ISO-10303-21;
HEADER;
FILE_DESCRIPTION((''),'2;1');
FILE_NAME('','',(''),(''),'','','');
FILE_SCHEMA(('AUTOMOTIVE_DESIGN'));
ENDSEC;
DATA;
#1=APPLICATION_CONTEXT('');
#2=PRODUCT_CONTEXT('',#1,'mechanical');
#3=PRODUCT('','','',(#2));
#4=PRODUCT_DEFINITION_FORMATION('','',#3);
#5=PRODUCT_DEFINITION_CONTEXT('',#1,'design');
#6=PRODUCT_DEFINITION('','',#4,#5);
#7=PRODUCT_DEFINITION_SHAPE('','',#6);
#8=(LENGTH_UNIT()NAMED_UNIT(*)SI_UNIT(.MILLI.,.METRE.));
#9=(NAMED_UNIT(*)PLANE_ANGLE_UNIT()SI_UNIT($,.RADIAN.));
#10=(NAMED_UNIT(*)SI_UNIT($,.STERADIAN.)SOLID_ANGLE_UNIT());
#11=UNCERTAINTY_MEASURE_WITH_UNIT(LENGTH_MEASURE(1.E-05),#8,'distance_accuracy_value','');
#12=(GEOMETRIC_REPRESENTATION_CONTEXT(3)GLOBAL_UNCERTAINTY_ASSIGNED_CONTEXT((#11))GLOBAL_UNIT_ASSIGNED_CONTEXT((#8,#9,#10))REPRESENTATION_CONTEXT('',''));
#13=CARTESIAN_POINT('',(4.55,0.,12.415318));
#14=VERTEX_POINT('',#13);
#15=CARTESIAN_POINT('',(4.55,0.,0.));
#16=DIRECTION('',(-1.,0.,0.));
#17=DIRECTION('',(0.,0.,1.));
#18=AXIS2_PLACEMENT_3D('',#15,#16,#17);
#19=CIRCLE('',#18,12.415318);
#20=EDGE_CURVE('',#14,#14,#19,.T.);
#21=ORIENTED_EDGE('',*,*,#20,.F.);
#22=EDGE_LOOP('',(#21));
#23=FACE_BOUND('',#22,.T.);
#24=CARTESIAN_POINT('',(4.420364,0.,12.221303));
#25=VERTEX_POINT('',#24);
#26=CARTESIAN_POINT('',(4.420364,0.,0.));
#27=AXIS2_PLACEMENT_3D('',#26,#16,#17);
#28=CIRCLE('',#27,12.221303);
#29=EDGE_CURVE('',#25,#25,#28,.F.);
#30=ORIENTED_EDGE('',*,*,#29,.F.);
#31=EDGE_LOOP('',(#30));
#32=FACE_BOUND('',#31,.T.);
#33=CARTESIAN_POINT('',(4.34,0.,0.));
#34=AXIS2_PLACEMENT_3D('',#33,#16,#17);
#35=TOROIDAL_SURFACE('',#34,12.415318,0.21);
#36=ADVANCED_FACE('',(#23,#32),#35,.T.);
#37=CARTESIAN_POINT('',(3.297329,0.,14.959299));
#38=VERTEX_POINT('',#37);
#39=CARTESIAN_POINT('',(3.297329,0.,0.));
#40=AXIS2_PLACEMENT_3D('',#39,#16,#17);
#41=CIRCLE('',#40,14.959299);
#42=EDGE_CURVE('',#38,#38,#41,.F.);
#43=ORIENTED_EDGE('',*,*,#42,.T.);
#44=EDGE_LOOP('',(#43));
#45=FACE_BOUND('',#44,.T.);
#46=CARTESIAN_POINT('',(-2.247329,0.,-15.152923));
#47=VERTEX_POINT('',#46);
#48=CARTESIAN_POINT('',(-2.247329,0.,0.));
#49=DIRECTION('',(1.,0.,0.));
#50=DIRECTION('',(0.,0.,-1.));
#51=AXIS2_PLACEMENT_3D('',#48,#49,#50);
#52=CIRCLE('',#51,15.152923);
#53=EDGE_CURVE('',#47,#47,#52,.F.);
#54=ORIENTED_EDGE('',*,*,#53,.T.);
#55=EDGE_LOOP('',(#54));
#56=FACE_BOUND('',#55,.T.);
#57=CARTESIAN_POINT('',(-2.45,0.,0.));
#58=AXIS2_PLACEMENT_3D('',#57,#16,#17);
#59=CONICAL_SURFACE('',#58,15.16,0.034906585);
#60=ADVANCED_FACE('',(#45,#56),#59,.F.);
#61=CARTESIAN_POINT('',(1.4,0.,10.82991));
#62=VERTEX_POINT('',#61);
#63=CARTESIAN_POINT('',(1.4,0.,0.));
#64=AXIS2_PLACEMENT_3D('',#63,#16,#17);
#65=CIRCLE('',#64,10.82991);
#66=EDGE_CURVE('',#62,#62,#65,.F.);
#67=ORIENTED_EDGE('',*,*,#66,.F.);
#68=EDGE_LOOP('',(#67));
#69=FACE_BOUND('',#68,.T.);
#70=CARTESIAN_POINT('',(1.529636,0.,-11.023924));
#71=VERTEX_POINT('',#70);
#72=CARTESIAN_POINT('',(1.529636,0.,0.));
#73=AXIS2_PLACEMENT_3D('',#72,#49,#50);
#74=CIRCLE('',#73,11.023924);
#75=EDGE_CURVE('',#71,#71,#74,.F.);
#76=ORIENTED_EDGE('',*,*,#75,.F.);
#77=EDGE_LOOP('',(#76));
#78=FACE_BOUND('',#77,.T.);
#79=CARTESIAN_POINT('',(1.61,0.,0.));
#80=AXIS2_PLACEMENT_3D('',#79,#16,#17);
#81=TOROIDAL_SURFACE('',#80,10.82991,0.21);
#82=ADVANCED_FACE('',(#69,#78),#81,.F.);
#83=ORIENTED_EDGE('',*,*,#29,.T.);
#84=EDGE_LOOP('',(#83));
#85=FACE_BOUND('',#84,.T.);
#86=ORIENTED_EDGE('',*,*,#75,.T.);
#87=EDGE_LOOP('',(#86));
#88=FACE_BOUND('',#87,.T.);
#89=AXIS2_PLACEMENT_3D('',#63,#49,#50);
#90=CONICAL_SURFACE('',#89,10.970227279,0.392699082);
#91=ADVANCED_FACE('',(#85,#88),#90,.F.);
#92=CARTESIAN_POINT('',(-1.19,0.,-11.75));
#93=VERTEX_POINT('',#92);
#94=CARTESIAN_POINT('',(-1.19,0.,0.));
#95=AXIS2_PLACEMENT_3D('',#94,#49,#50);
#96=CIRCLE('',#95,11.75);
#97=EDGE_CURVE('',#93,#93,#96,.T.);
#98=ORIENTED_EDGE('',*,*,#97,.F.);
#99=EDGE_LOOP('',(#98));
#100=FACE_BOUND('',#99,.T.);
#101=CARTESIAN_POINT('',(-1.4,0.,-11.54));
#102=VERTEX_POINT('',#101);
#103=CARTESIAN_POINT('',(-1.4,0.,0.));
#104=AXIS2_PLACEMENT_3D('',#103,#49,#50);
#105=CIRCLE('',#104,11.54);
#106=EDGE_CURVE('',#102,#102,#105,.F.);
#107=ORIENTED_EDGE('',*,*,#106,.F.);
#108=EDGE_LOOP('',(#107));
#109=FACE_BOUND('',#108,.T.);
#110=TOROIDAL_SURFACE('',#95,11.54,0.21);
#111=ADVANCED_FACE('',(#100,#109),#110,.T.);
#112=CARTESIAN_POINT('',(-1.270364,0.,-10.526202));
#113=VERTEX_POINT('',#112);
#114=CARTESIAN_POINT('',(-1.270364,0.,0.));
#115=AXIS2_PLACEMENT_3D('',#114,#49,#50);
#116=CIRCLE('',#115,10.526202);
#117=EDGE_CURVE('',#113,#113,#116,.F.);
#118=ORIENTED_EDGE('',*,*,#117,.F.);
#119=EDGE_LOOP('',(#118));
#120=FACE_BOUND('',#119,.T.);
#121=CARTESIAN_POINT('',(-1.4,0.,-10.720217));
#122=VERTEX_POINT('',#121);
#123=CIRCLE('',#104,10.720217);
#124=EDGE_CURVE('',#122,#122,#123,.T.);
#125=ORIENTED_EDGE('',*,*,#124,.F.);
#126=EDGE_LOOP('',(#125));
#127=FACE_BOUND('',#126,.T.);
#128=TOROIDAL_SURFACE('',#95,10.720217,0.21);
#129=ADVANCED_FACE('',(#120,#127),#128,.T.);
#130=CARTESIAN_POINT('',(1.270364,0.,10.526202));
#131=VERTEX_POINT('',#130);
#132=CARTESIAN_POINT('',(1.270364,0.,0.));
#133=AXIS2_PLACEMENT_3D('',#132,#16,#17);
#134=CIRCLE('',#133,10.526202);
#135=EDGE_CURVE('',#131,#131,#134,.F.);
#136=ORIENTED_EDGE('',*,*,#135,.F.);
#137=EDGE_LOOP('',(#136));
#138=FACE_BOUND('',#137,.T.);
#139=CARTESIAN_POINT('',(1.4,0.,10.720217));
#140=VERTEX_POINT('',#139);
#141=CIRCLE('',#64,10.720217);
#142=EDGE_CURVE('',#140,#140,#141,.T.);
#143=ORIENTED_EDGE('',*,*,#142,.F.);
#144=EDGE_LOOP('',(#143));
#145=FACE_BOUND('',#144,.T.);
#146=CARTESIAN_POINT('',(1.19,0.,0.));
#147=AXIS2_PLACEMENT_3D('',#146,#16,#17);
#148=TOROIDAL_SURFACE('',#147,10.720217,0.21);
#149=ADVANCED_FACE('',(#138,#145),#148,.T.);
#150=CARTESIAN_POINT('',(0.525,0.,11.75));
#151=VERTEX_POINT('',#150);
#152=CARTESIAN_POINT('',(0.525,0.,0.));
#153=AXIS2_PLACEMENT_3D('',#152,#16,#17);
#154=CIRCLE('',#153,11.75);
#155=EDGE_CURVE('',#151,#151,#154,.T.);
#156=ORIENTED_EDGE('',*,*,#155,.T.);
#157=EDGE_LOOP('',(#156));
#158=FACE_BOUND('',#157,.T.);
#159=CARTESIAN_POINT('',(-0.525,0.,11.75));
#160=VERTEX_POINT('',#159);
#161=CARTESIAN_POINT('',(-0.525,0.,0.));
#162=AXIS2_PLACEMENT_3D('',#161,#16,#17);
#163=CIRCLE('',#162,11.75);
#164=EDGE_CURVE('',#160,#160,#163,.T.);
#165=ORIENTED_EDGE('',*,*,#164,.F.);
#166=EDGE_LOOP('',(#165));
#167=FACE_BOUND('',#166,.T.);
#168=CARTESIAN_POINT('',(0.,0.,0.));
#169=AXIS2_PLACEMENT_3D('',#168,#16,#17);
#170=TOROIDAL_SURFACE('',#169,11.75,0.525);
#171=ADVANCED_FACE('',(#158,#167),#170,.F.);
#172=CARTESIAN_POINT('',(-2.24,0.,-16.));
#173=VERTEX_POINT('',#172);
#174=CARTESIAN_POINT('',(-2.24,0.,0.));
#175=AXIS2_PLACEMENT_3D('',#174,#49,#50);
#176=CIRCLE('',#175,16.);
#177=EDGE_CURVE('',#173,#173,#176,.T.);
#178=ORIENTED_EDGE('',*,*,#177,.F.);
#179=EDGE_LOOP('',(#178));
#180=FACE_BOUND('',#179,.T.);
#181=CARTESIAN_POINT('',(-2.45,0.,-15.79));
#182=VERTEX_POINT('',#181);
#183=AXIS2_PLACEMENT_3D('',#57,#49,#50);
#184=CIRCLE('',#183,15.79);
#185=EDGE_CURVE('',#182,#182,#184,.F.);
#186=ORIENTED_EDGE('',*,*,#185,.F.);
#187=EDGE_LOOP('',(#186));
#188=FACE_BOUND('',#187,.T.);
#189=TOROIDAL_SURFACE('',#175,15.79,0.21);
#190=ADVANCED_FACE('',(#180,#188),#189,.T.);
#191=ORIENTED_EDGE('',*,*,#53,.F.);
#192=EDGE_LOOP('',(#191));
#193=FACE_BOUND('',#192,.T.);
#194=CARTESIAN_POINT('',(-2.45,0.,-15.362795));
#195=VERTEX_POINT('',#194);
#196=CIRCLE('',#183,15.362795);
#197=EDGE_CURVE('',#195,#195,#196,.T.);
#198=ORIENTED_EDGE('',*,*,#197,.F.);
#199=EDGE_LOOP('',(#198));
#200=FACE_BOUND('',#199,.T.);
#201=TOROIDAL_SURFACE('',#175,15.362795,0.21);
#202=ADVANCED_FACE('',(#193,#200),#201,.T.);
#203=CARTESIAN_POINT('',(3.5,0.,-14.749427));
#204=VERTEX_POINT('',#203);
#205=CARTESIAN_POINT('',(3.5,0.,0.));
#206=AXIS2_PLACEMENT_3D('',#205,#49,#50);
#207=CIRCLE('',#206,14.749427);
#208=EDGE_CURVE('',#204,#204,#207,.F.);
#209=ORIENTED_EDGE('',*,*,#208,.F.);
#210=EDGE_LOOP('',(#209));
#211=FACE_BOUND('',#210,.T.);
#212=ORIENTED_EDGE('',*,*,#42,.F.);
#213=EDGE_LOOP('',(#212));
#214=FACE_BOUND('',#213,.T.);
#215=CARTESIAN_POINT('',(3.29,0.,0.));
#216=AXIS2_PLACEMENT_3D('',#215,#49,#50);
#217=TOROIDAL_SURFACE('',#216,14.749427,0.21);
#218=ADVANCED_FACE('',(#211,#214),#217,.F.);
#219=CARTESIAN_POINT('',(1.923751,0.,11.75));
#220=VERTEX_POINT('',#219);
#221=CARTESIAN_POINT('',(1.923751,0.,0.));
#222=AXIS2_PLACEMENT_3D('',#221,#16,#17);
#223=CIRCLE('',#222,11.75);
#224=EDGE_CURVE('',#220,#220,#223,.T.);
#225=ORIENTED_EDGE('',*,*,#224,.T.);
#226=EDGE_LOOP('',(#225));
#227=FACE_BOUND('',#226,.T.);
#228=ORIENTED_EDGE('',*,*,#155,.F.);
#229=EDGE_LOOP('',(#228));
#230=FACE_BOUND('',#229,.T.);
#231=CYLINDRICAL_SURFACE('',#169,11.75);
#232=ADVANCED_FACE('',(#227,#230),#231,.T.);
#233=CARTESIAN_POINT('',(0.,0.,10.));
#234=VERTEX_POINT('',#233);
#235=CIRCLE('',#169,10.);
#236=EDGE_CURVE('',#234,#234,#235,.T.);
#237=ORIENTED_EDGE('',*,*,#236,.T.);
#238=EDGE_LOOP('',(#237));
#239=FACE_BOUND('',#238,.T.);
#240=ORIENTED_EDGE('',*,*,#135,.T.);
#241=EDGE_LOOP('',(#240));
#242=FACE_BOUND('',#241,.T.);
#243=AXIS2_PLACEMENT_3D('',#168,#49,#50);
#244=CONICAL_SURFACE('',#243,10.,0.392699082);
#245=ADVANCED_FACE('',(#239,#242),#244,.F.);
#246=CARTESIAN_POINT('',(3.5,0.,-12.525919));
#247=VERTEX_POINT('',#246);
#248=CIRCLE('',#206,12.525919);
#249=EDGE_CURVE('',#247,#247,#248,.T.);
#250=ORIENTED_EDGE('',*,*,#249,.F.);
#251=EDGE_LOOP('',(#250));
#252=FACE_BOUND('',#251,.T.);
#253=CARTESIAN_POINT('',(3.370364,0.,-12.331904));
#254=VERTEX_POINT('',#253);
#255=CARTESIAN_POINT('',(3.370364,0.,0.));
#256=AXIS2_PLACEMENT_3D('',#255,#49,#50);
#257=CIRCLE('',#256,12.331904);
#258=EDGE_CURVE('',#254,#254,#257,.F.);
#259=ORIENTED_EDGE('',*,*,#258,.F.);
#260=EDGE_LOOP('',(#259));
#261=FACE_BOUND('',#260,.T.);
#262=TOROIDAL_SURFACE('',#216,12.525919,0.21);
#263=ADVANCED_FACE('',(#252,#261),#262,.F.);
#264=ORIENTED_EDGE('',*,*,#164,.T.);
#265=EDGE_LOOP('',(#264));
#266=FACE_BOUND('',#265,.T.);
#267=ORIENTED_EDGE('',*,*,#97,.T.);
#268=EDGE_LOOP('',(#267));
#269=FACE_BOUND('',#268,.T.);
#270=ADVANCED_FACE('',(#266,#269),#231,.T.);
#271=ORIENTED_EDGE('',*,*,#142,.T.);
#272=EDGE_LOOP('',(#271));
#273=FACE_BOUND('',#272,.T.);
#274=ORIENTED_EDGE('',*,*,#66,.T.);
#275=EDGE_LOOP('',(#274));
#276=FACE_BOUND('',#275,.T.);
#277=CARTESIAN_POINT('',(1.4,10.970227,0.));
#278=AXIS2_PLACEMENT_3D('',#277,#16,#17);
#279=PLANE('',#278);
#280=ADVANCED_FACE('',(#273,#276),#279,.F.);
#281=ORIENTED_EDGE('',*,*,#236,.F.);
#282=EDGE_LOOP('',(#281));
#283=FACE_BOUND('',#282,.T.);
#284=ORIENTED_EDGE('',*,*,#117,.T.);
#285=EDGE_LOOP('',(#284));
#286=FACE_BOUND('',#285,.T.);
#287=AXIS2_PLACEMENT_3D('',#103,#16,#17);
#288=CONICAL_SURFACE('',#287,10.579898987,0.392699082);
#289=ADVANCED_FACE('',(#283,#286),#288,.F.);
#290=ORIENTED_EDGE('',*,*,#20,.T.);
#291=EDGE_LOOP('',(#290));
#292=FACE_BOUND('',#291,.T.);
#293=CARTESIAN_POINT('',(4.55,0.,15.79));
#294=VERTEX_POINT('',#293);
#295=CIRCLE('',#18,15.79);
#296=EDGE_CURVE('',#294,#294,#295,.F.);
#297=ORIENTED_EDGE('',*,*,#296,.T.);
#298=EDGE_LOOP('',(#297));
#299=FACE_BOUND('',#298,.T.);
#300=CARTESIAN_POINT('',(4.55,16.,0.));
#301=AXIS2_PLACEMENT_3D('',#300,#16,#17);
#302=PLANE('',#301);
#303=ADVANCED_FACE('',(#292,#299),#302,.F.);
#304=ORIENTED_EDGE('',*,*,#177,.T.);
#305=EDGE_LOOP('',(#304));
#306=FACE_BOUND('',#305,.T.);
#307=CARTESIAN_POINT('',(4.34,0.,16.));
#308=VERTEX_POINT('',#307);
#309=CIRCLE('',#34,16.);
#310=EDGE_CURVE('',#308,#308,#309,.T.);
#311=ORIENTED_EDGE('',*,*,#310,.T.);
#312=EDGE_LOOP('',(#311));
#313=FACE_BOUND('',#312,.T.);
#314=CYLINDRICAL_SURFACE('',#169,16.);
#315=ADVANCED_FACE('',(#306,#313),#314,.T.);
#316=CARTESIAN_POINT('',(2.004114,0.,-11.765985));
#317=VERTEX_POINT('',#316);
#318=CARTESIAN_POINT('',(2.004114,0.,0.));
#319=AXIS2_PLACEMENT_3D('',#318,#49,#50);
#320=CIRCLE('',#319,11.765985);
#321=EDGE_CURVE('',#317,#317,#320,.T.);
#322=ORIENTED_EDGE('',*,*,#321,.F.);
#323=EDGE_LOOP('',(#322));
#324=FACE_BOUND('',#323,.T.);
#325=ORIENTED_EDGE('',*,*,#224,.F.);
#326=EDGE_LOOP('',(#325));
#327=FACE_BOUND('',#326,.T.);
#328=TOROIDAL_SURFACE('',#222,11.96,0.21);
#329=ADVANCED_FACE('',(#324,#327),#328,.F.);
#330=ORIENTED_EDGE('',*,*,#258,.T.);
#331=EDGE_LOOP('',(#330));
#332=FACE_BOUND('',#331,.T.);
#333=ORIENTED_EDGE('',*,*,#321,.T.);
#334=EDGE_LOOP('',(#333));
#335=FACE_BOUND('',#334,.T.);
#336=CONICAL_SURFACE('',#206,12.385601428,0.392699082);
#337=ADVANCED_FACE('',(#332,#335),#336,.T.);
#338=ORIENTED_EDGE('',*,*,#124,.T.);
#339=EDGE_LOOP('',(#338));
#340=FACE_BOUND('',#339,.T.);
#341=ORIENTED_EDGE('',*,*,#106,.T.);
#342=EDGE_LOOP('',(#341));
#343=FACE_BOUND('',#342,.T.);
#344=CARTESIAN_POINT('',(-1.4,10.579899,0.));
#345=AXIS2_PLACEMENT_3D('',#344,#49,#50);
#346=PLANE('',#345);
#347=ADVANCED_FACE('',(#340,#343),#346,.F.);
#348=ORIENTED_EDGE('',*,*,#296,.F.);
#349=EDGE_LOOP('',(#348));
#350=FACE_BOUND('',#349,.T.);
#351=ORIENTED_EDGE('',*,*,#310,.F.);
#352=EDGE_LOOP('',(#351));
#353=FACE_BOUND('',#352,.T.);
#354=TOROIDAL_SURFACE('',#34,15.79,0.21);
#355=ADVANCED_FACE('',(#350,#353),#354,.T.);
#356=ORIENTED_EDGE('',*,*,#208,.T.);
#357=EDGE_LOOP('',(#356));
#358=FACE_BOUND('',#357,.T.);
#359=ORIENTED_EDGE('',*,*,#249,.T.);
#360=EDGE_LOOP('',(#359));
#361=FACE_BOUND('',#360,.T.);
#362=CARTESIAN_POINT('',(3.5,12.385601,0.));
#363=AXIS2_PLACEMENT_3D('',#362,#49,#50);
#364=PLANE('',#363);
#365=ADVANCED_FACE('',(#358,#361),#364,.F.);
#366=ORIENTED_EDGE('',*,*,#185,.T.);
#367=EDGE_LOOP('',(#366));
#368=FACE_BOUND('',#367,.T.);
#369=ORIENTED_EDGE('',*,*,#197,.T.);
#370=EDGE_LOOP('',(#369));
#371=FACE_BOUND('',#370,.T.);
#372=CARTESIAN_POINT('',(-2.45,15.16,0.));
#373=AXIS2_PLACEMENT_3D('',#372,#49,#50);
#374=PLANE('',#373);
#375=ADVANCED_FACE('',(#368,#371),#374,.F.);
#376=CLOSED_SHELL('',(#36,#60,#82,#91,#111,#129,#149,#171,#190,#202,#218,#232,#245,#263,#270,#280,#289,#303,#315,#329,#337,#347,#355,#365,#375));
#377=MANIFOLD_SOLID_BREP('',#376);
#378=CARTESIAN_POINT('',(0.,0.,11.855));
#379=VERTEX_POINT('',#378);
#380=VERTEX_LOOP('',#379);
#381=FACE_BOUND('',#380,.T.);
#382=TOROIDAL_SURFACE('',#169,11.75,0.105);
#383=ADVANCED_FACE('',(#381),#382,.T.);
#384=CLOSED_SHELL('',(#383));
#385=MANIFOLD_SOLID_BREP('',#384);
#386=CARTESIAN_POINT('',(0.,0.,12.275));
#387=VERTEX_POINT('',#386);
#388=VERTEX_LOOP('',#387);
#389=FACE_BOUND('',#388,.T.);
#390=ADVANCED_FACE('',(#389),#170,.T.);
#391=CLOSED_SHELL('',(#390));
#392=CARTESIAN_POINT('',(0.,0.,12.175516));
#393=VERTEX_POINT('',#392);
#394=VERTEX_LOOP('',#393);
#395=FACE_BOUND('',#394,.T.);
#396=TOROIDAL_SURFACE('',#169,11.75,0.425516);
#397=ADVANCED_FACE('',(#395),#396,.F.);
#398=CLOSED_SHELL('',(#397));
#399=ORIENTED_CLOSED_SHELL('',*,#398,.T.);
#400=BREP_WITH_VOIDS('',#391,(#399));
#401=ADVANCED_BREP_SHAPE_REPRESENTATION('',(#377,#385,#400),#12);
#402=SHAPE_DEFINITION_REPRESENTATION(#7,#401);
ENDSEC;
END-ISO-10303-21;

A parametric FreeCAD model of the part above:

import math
import FreeCAD as App
import Part
import Sketcher
from FreeCAD import Vector
Q = App.Units.Quantity


def edges_at(feature, points):
    """Names of the edges that pass closest to the given points."""
    edges = feature.Shape.Edges
    near = lambda p: min(range(len(edges)), key=lambda i: edges[i].distToShape(Part.Vertex(*p))[0])
    return sorted({f"Edge{near(p) + 1}" for p in points})

doc = App.newDocument("Part")
body = doc.addObject("PartDesign::Body", "Body")

sketch1 = body.newObject("Sketcher::SketchObject", "Sketch")
sketch1.AttachmentSupport = (doc.getObject("XY_Plane"), [""])
sketch1.MapMode = "FlatFace"
sketch1.addGeometry([
    Part.LineSegment(Vector(4.55, 16, 0), Vector(-2.45, 16, 0)),
    Part.LineSegment(Vector(-2.45, 16, 0), Vector(-2.45, 15.16, 0)),
    Part.LineSegment(Vector(-2.45, 15.16, 0), Vector(3.5, 14.95, 0)),
    Part.LineSegment(Vector(3.5, 14.95, 0), Vector(3.5, 12.39, 0)),
    Part.LineSegment(Vector(3.5, 12.39, 0), Vector(1.97, 11.75, 0)),
    Part.LineSegment(Vector(1.97, 11.75, 0), Vector(0.53, 11.75, 0)),
    Part.ArcOfCircle(Part.Circle(Vector(0, 11.75, 0), Vector(0, 0, 1), 0.53), math.radians(180), math.radians(360)),
    Part.LineSegment(Vector(-0.53, 11.75, 0), Vector(-1.4, 11.75, 0)),
    Part.LineSegment(Vector(-1.4, 11.75, 0), Vector(-1.4, 10.58, 0)),
    Part.LineSegment(Vector(-1.4, 10.58, 0), Vector(0, 10, 0)),
    Part.LineSegment(Vector(0, 10, 0), Vector(1.4, 10.58, 0)),
    Part.LineSegment(Vector(1.4, 10.58, 0), Vector(1.4, 10.97, 0)),
    Part.LineSegment(Vector(1.4, 10.97, 0), Vector(4.55, 12.28, 0)),
    Part.LineSegment(Vector(4.55, 12.28, 0), Vector(4.55, 16, 0)),
], False)
sketch1.addConstraint([
    Sketcher.Constraint("Coincident", 0, 2, 1, 1),
    Sketcher.Constraint("Coincident", 1, 2, 2, 1),
    Sketcher.Constraint("Coincident", 2, 2, 3, 1),
    Sketcher.Constraint("Coincident", 3, 2, 4, 1),
    Sketcher.Constraint("Coincident", 4, 2, 5, 1),
    Sketcher.Constraint("Coincident", 5, 2, 6, 2),
    Sketcher.Constraint("Coincident", 6, 1, 7, 1),
    Sketcher.Constraint("Coincident", 7, 2, 8, 1),
    Sketcher.Constraint("Coincident", 8, 2, 9, 1),
    Sketcher.Constraint("Coincident", 9, 2, 10, 1),
    Sketcher.Constraint("Coincident", 10, 2, 11, 1),
    Sketcher.Constraint("Coincident", 11, 2, 12, 1),
    Sketcher.Constraint("Coincident", 12, 2, 13, 1),
    Sketcher.Constraint("Coincident", 13, 2, 0, 1),
    Sketcher.Constraint("Horizontal", 0),
    Sketcher.Constraint("Vertical", 1),
    Sketcher.Constraint("Vertical", 3),
    Sketcher.Constraint("Horizontal", 5),
    Sketcher.Constraint("Horizontal", 7),
    Sketcher.Constraint("Vertical", 8),
    Sketcher.Constraint("Vertical", 11),
    Sketcher.Constraint("Vertical", 13),
    Sketcher.Constraint("Symmetric", 5, 2, 6, 1, -2),
    Sketcher.Constraint("Symmetric", 8, 2, 10, 2, -2),
    Sketcher.Constraint("PointOnObject", 9, 2, -2),
    Sketcher.Constraint("Parallel", 4, 10),
    Sketcher.Constraint("Parallel", 10, 12),
    Sketcher.Constraint("Horizontal", 6, 3, 4, 2),
    Sketcher.Constraint("DistanceX", 0, 2, 0, 1, Q("7 mm")),
    Sketcher.Constraint("Angle", 2, Q("-2 deg")),
    Sketcher.Constraint("DistanceY", -1, 1, 0, 2, Q("16 mm")),
    Sketcher.Constraint("DistanceY", -1, 1, 9, 2, Q("10 mm")),
    Sketcher.Constraint("Angle", 4, Q("-157.5 deg")),
    Sketcher.Constraint("Radius", 6, Q("0.525 mm")),
    Sketcher.Constraint("DistanceY", 1, 2, 1, 1, Q("0.84 mm")),
    Sketcher.Constraint("DistanceX", -1, 1, 2, 2, Q("3.5 mm")),
    Sketcher.Constraint("DistanceX", 7, 2, -1, 1, Q("1.4 mm")),
    Sketcher.Constraint("DistanceY", 13, 1, 13, 2, Q("3.725 mm")),
    Sketcher.Constraint("DistanceY", -1, 1, 6, 3, Q("11.75 mm")),
    Sketcher.Constraint("DistanceX", 0, 2, -1, 1, Q("2.45 mm")),
    Sketcher.Constraint("DistanceY", 3, 2, 3, 1, Q("2.56662 mm")),
])
revolution = body.newObject("PartDesign::Revolution", "Revolution")
revolution.Profile = sketch1
revolution.ReferenceAxis = (sketch1, ["H_Axis"])
revolution.Angle = 360
doc.recompute()

fillet = body.newObject("PartDesign::Fillet", "Fillet")
fillet.Base = (revolution, edges_at(revolution, [
    (-1.4, -10.58, 0),
    (-1.4, -11.75, 0),
    (1.966, -11.75, 0),
    (3.5, -12.386, 0),
    (3.5, -14.952, 0),
    (-2.45, -15.16, 0),
    (-2.45, -16, 0),
    (4.55, -16, 0),
    (4.55, -12.275, 0),
    (1.4, -10.97, 0),
    (1.4, -10.58, 0),
]))
fillet.Radius = 0.21
body2 = doc.addObject("PartDesign::Body", "Body001")
body2.AllowCompound = True

sketch2 = body2.newObject("Sketcher::SketchObject", "Sketch001")
sketch2.AttachmentSupport = (doc.getObject("XZ_Plane001"), [""])
sketch2.MapMode = "FlatFace"
sketch2.addGeometry([
    Part.Circle(Vector(0, -11.75, 0), Vector(0, 0, 1), 0.53),
    Part.Circle(Vector(0, -11.75, 0), Vector(0, 0, 1), 0.43),
    Part.Circle(Vector(0, -11.75, 0), Vector(0, 0, 1), 0.1),
], False)
sketch2.addConstraint([
    Sketcher.Constraint("Coincident", 1, 3, 0, 3),
    Sketcher.Constraint("Coincident", 2, 3, 0, 3),
    Sketcher.Constraint("PointOnObject", 0, 3, -2),
    Sketcher.Constraint("Diameter", 0, Q("1.05 mm")),
    Sketcher.Constraint("Diameter", 2, Q("0.21 mm")),
    Sketcher.Constraint("DistanceY", 0, 3, -1, 1, Q("11.75 mm")),
    Sketcher.Constraint("Diameter", 1, Q("0.851033 mm")),
])
revolution2 = body2.newObject("PartDesign::Revolution", "Revolution001")
revolution2.Profile = sketch2
revolution2.ReferenceAxis = (sketch2, ["H_Axis"])
revolution2.Angle = 360

doc.recompute()
